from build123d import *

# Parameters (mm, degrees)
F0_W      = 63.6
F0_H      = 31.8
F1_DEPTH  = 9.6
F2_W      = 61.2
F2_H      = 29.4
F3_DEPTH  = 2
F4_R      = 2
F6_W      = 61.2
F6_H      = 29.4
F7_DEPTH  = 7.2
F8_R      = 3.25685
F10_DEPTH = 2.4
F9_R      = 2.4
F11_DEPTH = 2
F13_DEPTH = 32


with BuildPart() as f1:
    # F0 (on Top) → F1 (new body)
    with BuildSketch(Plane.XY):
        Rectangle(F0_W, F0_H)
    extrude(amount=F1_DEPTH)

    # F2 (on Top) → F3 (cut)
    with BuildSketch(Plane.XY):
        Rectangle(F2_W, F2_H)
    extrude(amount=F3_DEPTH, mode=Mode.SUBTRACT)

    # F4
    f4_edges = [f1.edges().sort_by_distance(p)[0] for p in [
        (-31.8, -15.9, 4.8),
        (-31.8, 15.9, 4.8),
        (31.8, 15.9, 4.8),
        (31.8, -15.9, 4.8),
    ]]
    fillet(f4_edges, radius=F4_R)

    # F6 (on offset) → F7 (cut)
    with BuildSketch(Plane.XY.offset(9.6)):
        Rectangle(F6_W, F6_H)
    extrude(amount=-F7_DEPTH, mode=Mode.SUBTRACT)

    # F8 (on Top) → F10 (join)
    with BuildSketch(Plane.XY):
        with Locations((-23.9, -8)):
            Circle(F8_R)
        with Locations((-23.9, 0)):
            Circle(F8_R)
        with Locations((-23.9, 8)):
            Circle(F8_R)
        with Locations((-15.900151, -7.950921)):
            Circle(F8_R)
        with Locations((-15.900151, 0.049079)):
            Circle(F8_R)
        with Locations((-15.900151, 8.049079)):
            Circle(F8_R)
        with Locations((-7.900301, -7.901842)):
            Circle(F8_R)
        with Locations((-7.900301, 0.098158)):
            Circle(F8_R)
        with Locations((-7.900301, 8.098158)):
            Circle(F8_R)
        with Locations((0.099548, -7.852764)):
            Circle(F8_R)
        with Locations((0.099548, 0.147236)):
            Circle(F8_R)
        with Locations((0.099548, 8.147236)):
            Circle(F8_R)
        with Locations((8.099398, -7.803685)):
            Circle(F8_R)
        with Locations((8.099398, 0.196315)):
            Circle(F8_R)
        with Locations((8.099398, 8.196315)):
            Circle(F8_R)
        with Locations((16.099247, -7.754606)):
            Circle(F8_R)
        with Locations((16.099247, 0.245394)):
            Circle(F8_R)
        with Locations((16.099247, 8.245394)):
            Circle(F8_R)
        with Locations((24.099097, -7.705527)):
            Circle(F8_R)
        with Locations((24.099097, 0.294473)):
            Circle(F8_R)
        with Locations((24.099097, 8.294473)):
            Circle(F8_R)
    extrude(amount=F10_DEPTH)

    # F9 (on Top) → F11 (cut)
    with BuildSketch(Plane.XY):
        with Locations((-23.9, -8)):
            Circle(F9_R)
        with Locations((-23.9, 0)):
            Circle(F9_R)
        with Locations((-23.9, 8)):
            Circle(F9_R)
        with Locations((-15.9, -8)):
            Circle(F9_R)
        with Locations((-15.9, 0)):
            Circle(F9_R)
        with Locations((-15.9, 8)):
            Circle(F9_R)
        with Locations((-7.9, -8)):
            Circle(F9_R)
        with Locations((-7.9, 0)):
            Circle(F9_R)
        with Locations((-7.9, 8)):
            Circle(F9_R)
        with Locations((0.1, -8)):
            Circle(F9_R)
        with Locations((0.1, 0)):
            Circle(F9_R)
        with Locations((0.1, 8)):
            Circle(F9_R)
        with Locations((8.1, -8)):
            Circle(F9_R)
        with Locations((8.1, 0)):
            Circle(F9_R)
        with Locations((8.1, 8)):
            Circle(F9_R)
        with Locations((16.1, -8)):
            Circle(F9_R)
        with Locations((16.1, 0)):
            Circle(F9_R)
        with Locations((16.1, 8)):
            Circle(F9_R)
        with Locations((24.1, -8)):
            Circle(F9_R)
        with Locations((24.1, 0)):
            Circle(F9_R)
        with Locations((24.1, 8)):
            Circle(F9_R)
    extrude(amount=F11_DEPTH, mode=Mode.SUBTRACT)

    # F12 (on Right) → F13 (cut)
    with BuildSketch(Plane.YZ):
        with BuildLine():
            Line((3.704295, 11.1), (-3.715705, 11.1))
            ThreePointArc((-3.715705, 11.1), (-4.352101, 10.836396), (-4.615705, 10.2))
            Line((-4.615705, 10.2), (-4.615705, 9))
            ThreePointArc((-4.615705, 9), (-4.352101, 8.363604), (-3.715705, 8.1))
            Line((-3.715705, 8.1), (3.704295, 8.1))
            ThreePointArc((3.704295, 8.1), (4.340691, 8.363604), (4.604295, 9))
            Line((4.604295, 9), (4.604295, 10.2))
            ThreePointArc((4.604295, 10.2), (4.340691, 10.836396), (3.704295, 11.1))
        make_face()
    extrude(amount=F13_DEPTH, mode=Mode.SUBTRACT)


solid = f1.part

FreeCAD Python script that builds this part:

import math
import FreeCAD as App
import Part
import Sketcher

V = App.Vector


def edges_at(feature, points):
    """Names of the edges that pass closest to the given points."""
    edges = feature.Shape.Edges
    near = lambda p: min(range(len(edges)), key=lambda i: edges[i].distToShape(Part.Vertex(*p))[0])
    return sorted({f"Edge{near(p) + 1}" for p in points})

doc = App.newDocument("Part")
body = doc.addObject("PartDesign::Body", "Body")

sketch1 = body.newObject("Sketcher::SketchObject", "Sketch")
sketch1.AttachmentSupport = (doc.getObject("XY_Plane"), [""])
sketch1.MapMode = "FlatFace"
sketch1.addGeometry([
    Part.LineSegment(V(-32, 16, 0), V(-32, -16, 0)),
    Part.LineSegment(V(-32, -16, 0), V(32, -16, 0)),
    Part.LineSegment(V(32, -16, 0), V(32, 16, 0)),
    Part.LineSegment(V(32, 16, 0), V(-32, 16, 0)),
], False)
sketch1.addConstraint([
    Sketcher.Constraint("Coincident", 0, 2, 1, 1),
    Sketcher.Constraint("Coincident", 1, 2, 2, 1),
    Sketcher.Constraint("Coincident", 2, 2, 3, 1),
    Sketcher.Constraint("Coincident", 3, 2, 0, 1),
    Sketcher.Constraint("Vertical", 0),
    Sketcher.Constraint("Horizontal", 1),
    Sketcher.Constraint("Vertical", 2),
    Sketcher.Constraint("Horizontal", 3),
    Sketcher.Constraint("Symmetric", 0, 2, 2, 2, -1, 1),
    Sketcher.Constraint("DistanceX", 1, 1, 1, 2, 63.6),
    Sketcher.Constraint("DistanceY", 0, 2, 0, 1, 31.8),
])
pad1 = body.newObject("PartDesign::Pad", "Pad")
pad1.Profile = sketch1
pad1.Length = 9.6

sketch2 = body.newObject("Sketcher::SketchObject", "Sketch001")
sketch2.AttachmentSupport = (doc.getObject("XY_Plane"), [""])
sketch2.MapMode = "FlatFace"
sketch2.addGeometry([
    Part.LineSegment(V(-31, 15, 0), V(-31, -15, 0)),
    Part.LineSegment(V(-31, -15, 0), V(31, -15, 0)),
    Part.LineSegment(V(31, -15, 0), V(31, 15, 0)),
    Part.LineSegment(V(31, 15, 0), V(-31, 15, 0)),
], False)
sketch2.addConstraint([
    Sketcher.Constraint("Coincident", 0, 2, 1, 1),
    Sketcher.Constraint("Coincident", 1, 2, 2, 1),
    Sketcher.Constraint("Coincident", 2, 2, 3, 1),
    Sketcher.Constraint("Coincident", 3, 2, 0, 1),
    Sketcher.Constraint("Vertical", 0),
    Sketcher.Constraint("Horizontal", 1),
    Sketcher.Constraint("Vertical", 2),
    Sketcher.Constraint("Horizontal", 3),
    Sketcher.Constraint("Symmetric", 0, 2, 2, 2, -1, 1),
    Sketcher.Constraint("DistanceX", 1, 1, 1, 2, 61.2),
    Sketcher.Constraint("DistanceY", 0, 2, 0, 1, 29.4),
])
pocket1 = body.newObject("PartDesign::Pocket", "Pocket")
pocket1.Profile = sketch2
pocket1.Length = 2
pocket1.Reversed = True
doc.recompute()

fillet = body.newObject("PartDesign::Fillet", "Fillet")
fillet.Base = (pocket1, edges_at(pocket1, [
    (-31.8, -15.9, 4.8),
    (-31.8, 15.9, 4.8),
    (31.8, 15.9, 4.8),
    (31.8, -15.9, 4.8),
]))
fillet.Radius = 2

sketch3 = body.newObject("Sketcher::SketchObject", "Sketch002")
sketch3.AttachmentSupport = (doc.getObject("XY_Plane"), [""])
sketch3.MapMode = "FlatFace"
sketch3.AttachmentOffset = App.Placement(V(0, 0, 9.6), App.Rotation())
sketch3.addGeometry([
    Part.LineSegment(V(-31, 15, 0), V(-31, -15, 0)),
    Part.LineSegment(V(-31, -15, 0), V(31, -15, 0)),
    Part.LineSegment(V(31, -15, 0), V(31, 15, 0)),
    Part.LineSegment(V(31, 15, 0), V(-31, 15, 0)),
], False)
sketch3.addConstraint([
    Sketcher.Constraint("Coincident", 0, 2, 1, 1),
    Sketcher.Constraint("Coincident", 1, 2, 2, 1),
    Sketcher.Constraint("Coincident", 2, 2, 3, 1),
    Sketcher.Constraint("Coincident", 3, 2, 0, 1),
    Sketcher.Constraint("Vertical", 0),
    Sketcher.Constraint("Horizontal", 1),
    Sketcher.Constraint("Vertical", 2),
    Sketcher.Constraint("Horizontal", 3),
    Sketcher.Constraint("Symmetric", 0, 2, 2, 2, -1, 1),
    Sketcher.Constraint("DistanceX", 1, 1, 1, 2, 61.2),
    Sketcher.Constraint("DistanceY", 0, 2, 0, 1, 29.4),
])
pocket2 = body.newObject("PartDesign::Pocket", "Pocket001")
pocket2.Profile = sketch3
pocket2.Length = 7.2

sketch4 = body.newObject("Sketcher::SketchObject", "Sketch003")
sketch4.AttachmentSupport = (doc.getObject("XY_Plane"), [""])
sketch4.MapMode = "FlatFace"
sketch4.addGeometry([
    Part.Circle(V(-23.9, -8, 0), V(0, 0, 1), 3.3),
    Part.Circle(V(-23.9, 0, 0), V(0, 0, 1), 3.3),
    Part.Circle(V(-23.9, 8, 0), V(0, 0, 1), 3.3),
    Part.Circle(V(-15.9, -8, 0), V(0, 0, 1), 3.3),
    Part.Circle(V(-15.9, 0, 0), V(0, 0, 1), 3.3),
    Part.Circle(V(-15.9, 8, 0), V(0, 0, 1), 3.3),
    Part.Circle(V(-7.9, -7.9, 0), V(0, 0, 1), 3.3),
    Part.Circle(V(-7.9, 0.1, 0), V(0, 0, 1), 3.3),
    Part.Circle(V(-7.9, 8.1, 0), V(0, 0, 1), 3.3),
    Part.Circle(V(0.1, -7.9, 0), V(0, 0, 1), 3.3),
    Part.Circle(V(0.1, 0.1, 0), V(0, 0, 1), 3.3),
    Part.Circle(V(0.1, 8.1, 0), V(0, 0, 1), 3.3),
    Part.Circle(V(8.1, -7.8, 0), V(0, 0, 1), 3.3),
    Part.Circle(V(8.1, 0.2, 0), V(0, 0, 1), 3.3),
    Part.Circle(V(8.1, 8.2, 0), V(0, 0, 1), 3.3),
    Part.Circle(V(16.1, -7.8, 0), V(0, 0, 1), 3.3),
    Part.Circle(V(16.1, 0.2, 0), V(0, 0, 1), 3.3),
    Part.Circle(V(16.1, 8.2, 0), V(0, 0, 1), 3.3),
    Part.Circle(V(24.1, -7.7, 0), V(0, 0, 1), 3.3),
    Part.Circle(V(24.1, 0.3, 0), V(0, 0, 1), 3.3),
    Part.Circle(V(24.1, 8.3, 0), V(0, 0, 1), 3.3),
], False)
sketch4.addConstraint([
    Sketcher.Constraint("Equal", 0, 1),
    Sketcher.Constraint("Equal", 1, 2),
    Sketcher.Constraint("Equal", 2, 3),
    Sketcher.Constraint("Equal", 3, 4),
    Sketcher.Constraint("Equal", 4, 5),
    Sketcher.Constraint("Equal", 5, 6),
    Sketcher.Constraint("Equal", 6, 7),
    Sketcher.Constraint("Equal", 7, 8),
    Sketcher.Constraint("Equal", 8, 9),
    Sketcher.Constraint("Equal", 9, 10),
    Sketcher.Constraint("Equal", 10, 11),
    Sketcher.Constraint("Equal", 11, 12),
    Sketcher.Constraint("Equal", 12, 13),
    Sketcher.Constraint("Equal", 13, 14),
    Sketcher.Constraint("Equal", 14, 15),
    Sketcher.Constraint("Equal", 15, 16),
    Sketcher.Constraint("Equal", 16, 17),
    Sketcher.Constraint("Equal", 17, 18),
    Sketcher.Constraint("Equal", 18, 19),
    Sketcher.Constraint("Equal", 19, 20),
    Sketcher.Constraint("Symmetric", 0, 3, 2, 3, -1),
    Sketcher.Constraint("PointOnObject", 1, 3, -1),
    Sketcher.Constraint("Vertical", 0, 3, 1, 3),
    Sketcher.Constraint("Vertical", 3, 3, 4, 3),
    Sketcher.Constraint("Vertical", 4, 3, 5, 3),
    Sketcher.Constraint("Vertical", 6, 3, 7, 3),
    Sketcher.Constraint("Vertical", 7, 3, 8, 3),
    Sketcher.Constraint("Vertical", 9, 3, 10, 3),
    Sketcher.Constraint("Vertical", 10, 3, 11, 3),
    Sketcher.Constraint("Vertical", 12, 3, 13, 3),
    Sketcher.Constraint("Vertical", 13, 3, 14, 3),
    Sketcher.Constraint("Vertical", 15, 3, 16, 3),
    Sketcher.Constraint("Vertical", 16, 3, 17, 3),
    Sketcher.Constraint("Vertical", 18, 3, 19, 3),
    Sketcher.Constraint("Vertical", 19, 3, 20, 3),
    Sketcher.Constraint("DistanceY", 0, 3, -1, 1, 8.0),
    Sketcher.Constraint("DistanceY", 3, 3, 4, 3, 8.0),
    Sketcher.Constraint("DistanceY", 4, 3, 5, 3, 8.0),
    Sketcher.Constraint("DistanceY", 6, 3, 7, 3, 8.0),
    Sketcher.Constraint("DistanceY", 7, 3, 8, 3, 8.0),
    Sketcher.Constraint("DistanceY", 9, 3, 10, 3, 8.0),
    Sketcher.Constraint("DistanceY", 10, 3, 11, 3, 8.0),
    Sketcher.Constraint("DistanceY", 12, 3, 13, 3, 8.0),
    Sketcher.Constraint("DistanceY", 13, 3, 14, 3, 8.0),
    Sketcher.Constraint("DistanceY", 15, 3, 16, 3, 8.0),
    Sketcher.Constraint("DistanceY", 16, 3, 17, 3, 8.0),
    Sketcher.Constraint("DistanceY", 18, 3, 19, 3, 8.0),
    Sketcher.Constraint("DistanceY", 19, 3, 20, 3, 8.0),
    Sketcher.Constraint("Diameter", 0, 6.5137),
    Sketcher.Constraint("DistanceX", 0, 3, -1, 1, 23.9),
    Sketcher.Constraint("DistanceX", 6, 3, -1, 1, 7.900301),
    Sketcher.Constraint("DistanceX", -1, 1, 12, 3, 8.099398),
    Sketcher.Constraint("DistanceX", 3, 3, 9, 3, 15.999699),
    Sketcher.Constraint("DistanceX", 9, 3, 15, 3, 15.999699),
    Sketcher.Constraint("DistanceX", 12, 3, 18, 3, 15.999699),
    Sketcher.Constraint("DistanceX", 3, 3, -1, 1, 15.900151),
    Sketcher.Constraint("DistanceY", 3, 3, -1, 1, 7.950921),
    Sketcher.Constraint("DistanceY", 3, 3, 6, 3, 0.049079),
    Sketcher.Constraint("DistanceY", 6, 3, 9, 3, 0.049078),
    Sketcher.Constraint("DistanceY", 9, 3, 12, 3, 0.049079),
    Sketcher.Constraint("DistanceY", 12, 3, 15, 3, 0.049079),
    Sketcher.Constraint("DistanceY", 15, 3, 18, 3, 0.049079),
])
pad2 = body.newObject("PartDesign::Pad", "Pad001")
pad2.Profile = sketch4
pad2.Length = 2.4

sketch5 = body.newObject("Sketcher::SketchObject", "Sketch004")
sketch5.AttachmentSupport = (doc.getObject("XY_Plane"), [""])
sketch5.MapMode = "FlatFace"
sketch5.addGeometry([
    Part.Circle(V(-23.9, -8, 0), V(0, 0, 1), 2.4),
    Part.Circle(V(-23.9, 0, 0), V(0, 0, 1), 2.4),
    Part.Circle(V(-23.9, 8, 0), V(0, 0, 1), 2.4),
    Part.Circle(V(-15.9, -8, 0), V(0, 0, 1), 2.4),
    Part.Circle(V(-15.9, 0, 0), V(0, 0, 1), 2.4),
    Part.Circle(V(-15.9, 8, 0), V(0, 0, 1), 2.4),
    Part.Circle(V(-7.9, -8, 0), V(0, 0, 1), 2.4),
    Part.Circle(V(-7.9, 0, 0), V(0, 0, 1), 2.4),
    Part.Circle(V(-7.9, 8, 0), V(0, 0, 1), 2.4),
    Part.Circle(V(0.1, -8, 0), V(0, 0, 1), 2.4),
    Part.Circle(V(0.1, 0, 0), V(0, 0, 1), 2.4),
    Part.Circle(V(0.1, 8, 0), V(0, 0, 1), 2.4),
    Part.Circle(V(8.1, -8, 0), V(0, 0, 1), 2.4),
    Part.Circle(V(8.1, 0, 0), V(0, 0, 1), 2.4),
    Part.Circle(V(8.1, 8, 0), V(0, 0, 1), 2.4),
    Part.Circle(V(16.1, -8, 0), V(0, 0, 1), 2.4),
    Part.Circle(V(16.1, 0, 0), V(0, 0, 1), 2.4),
    Part.Circle(V(16.1, 8, 0), V(0, 0, 1), 2.4),
    Part.Circle(V(24.1, -8, 0), V(0, 0, 1), 2.4),
    Part.Circle(V(24.1, 0, 0), V(0, 0, 1), 2.4),
    Part.Circle(V(24.1, 8, 0), V(0, 0, 1), 2.4),
], False)
sketch5.addConstraint([
    Sketcher.Constraint("Equal", 0, 1),
    Sketcher.Constraint("Equal", 1, 2),
    Sketcher.Constraint("Equal", 2, 3),
    Sketcher.Constraint("Equal", 3, 4),
    Sketcher.Constraint("Equal", 4, 5),
    Sketcher.Constraint("Equal", 5, 6),
    Sketcher.Constraint("Equal", 6, 7),
    Sketcher.Constraint("Equal", 7, 8),
    Sketcher.Constraint("Equal", 8, 9),
    Sketcher.Constraint("Equal", 9, 10),
    Sketcher.Constraint("Equal", 10, 11),
    Sketcher.Constraint("Equal", 11, 12),
    Sketcher.Constraint("Equal", 12, 13),
    Sketcher.Constraint("Equal", 13, 14),
    Sketcher.Constraint("Equal", 14, 15),
    Sketcher.Constraint("Equal", 15, 16),
    Sketcher.Constraint("Equal", 16, 17),
    Sketcher.Constraint("Equal", 17, 18),
    Sketcher.Constraint("Equal", 18, 19),
    Sketcher.Constraint("Equal", 19, 20),
    Sketcher.Constraint("Symmetric", 0, 3, 2, 3, -1),
    Sketcher.Constraint("Symmetric", 3, 3, 5, 3, -1),
    Sketcher.Constraint("Symmetric", 6, 3, 8, 3, -1),
    Sketcher.Constraint("Symmetric", 9, 3, 11, 3, -1),
    Sketcher.Constraint("Symmetric", 12, 3, 14, 3, -1),
    Sketcher.Constraint("Symmetric", 15, 3, 17, 3, -1),
    Sketcher.Constraint("Symmetric", 18, 3, 20, 3, -1),
    Sketcher.Constraint("PointOnObject", 1, 3, -1),
    Sketcher.Constraint("PointOnObject", 4, 3, -1),
    Sketcher.Constraint("PointOnObject", 7, 3, -1),
    Sketcher.Constraint("PointOnObject", 10, 3, -1),
    Sketcher.Constraint("PointOnObject", 13, 3, -1),
    Sketcher.Constraint("PointOnObject", 16, 3, -1),
    Sketcher.Constraint("PointOnObject", 19, 3, -1),
    Sketcher.Constraint("Horizontal", 0, 3, 3, 3),
    Sketcher.Constraint("Horizontal", 3, 3, 6, 3),
    Sketcher.Constraint("Horizontal", 6, 3, 9, 3),
    Sketcher.Constraint("Horizontal", 9, 3, 12, 3),
    Sketcher.Constraint("Horizontal", 12, 3, 15, 3),
    Sketcher.Constraint("Horizontal", 15, 3, 18, 3),
    Sketcher.Constraint("Vertical", 0, 3, 1, 3),
    Sketcher.Constraint("Vertical", 3, 3, 4, 3),
    Sketcher.Constraint("Vertical", 6, 3, 7, 3),
    Sketcher.Constraint("Vertical", 9, 3, 10, 3),
    Sketcher.Constraint("Vertical", 12, 3, 13, 3),
    Sketcher.Constraint("Vertical", 15, 3, 16, 3),
    Sketcher.Constraint("Vertical", 18, 3, 19, 3),
    Sketcher.Constraint("Diameter", 0, 4.8),
    Sketcher.Constraint("DistanceY", 0, 3, -1, 1, 8.0),
    Sketcher.Constraint("DistanceX", 0, 3, 3, 3, 8.0),
    Sketcher.Constraint("DistanceX", 3, 3, 6, 3, 8.0),
    Sketcher.Constraint("DistanceX", 6, 3, 9, 3, 8.0),
    Sketcher.Constraint("DistanceX", 9, 3, 12, 3, 8.0),
    Sketcher.Constraint("DistanceX", 12, 3, 15, 3, 8.0),
    Sketcher.Constraint("DistanceX", 15, 3, 18, 3, 8.0),
    Sketcher.Constraint("DistanceX", 0, 3, -1, 1, 23.9),
])
pocket3 = body.newObject("PartDesign::Pocket", "Pocket002")
pocket3.Profile = sketch5
pocket3.Length = 2
pocket3.Reversed = True

sketch6 = body.newObject("Sketcher::SketchObject", "Sketch005")
sketch6.AttachmentSupport = (doc.getObject("YZ_Plane"), [""])
sketch6.MapMode = "FlatFace"
sketch6.addGeometry([
    Part.LineSegment(V(3.7, 11.1, 0), V(-3.7, 11.1, 0)),
    Part.ArcOfCircle(Part.Circle(V(-3.7, 10.2, 0), V(0, 0, 1), 0.9), math.radians(90), math.radians(180)),
    Part.LineSegment(V(-4.6, 10.2, 0), V(-4.6, 9, 0)),
    Part.ArcOfCircle(Part.Circle(V(-3.7, 9, 0), V(0, 0, 1), 0.9), math.radians(-180), math.radians(-90)),
    Part.LineSegment(V(-3.7, 8.1, 0), V(3.7, 8.1, 0)),
    Part.ArcOfCircle(Part.Circle(V(3.7, 9, 0), V(0, 0, 1), 0.9), math.radians(-90), math.radians(0)),
    Part.LineSegment(V(4.6, 9, 0), V(4.6, 10.2, 0)),
    Part.ArcOfCircle(Part.Circle(V(3.7, 10.2, 0), V(0, 0, 1), 0.9), math.radians(0), math.radians(90)),
], False)
sketch6.addConstraint([
    Sketcher.Constraint("Tangent", 0, 2, 1, 1),
    Sketcher.Constraint("Tangent", 1, 2, 2, 1),
    Sketcher.Constraint("Tangent", 2, 2, 3, 1),
    Sketcher.Constraint("Tangent", 3, 2, 4, 1),
    Sketcher.Constraint("Tangent", 4, 2, 5, 1),
    Sketcher.Constraint("Tangent", 5, 2, 6, 1),
    Sketcher.Constraint("Tangent", 6, 2, 7, 1),
    Sketcher.Constraint("Tangent", 7, 2, 0, 1),
    Sketcher.Constraint("Horizontal", 0),
    Sketcher.Constraint("Vertical", 2),
    Sketcher.Constraint("Horizontal", 4),
    Sketcher.Constraint("Vertical", 6),
    Sketcher.Constraint("Equal", 1, 3),
    Sketcher.Constraint("Equal", 3, 5),
    Sketcher.Constraint("Equal", 5, 7),
    Sketcher.Constraint("Radius", 1, 0.9),
    Sketcher.Constraint("DistanceY", 2, 2, 2, 1, 1.2),
    Sketcher.Constraint("DistanceY", -1, 1, 3, 3, 9.0),
    Sketcher.Constraint("DistanceX", 0, 2, 0, 1, 7.42),
    Sketcher.Constraint("DistanceX", 1, 3, -1, 1, 3.715705),
])
pocket4 = body.newObject("PartDesign::Pocket", "Pocket003")
pocket4.Profile = sketch6
pocket4.Length = 32
pocket4.Reversed = True

doc.recompute()
